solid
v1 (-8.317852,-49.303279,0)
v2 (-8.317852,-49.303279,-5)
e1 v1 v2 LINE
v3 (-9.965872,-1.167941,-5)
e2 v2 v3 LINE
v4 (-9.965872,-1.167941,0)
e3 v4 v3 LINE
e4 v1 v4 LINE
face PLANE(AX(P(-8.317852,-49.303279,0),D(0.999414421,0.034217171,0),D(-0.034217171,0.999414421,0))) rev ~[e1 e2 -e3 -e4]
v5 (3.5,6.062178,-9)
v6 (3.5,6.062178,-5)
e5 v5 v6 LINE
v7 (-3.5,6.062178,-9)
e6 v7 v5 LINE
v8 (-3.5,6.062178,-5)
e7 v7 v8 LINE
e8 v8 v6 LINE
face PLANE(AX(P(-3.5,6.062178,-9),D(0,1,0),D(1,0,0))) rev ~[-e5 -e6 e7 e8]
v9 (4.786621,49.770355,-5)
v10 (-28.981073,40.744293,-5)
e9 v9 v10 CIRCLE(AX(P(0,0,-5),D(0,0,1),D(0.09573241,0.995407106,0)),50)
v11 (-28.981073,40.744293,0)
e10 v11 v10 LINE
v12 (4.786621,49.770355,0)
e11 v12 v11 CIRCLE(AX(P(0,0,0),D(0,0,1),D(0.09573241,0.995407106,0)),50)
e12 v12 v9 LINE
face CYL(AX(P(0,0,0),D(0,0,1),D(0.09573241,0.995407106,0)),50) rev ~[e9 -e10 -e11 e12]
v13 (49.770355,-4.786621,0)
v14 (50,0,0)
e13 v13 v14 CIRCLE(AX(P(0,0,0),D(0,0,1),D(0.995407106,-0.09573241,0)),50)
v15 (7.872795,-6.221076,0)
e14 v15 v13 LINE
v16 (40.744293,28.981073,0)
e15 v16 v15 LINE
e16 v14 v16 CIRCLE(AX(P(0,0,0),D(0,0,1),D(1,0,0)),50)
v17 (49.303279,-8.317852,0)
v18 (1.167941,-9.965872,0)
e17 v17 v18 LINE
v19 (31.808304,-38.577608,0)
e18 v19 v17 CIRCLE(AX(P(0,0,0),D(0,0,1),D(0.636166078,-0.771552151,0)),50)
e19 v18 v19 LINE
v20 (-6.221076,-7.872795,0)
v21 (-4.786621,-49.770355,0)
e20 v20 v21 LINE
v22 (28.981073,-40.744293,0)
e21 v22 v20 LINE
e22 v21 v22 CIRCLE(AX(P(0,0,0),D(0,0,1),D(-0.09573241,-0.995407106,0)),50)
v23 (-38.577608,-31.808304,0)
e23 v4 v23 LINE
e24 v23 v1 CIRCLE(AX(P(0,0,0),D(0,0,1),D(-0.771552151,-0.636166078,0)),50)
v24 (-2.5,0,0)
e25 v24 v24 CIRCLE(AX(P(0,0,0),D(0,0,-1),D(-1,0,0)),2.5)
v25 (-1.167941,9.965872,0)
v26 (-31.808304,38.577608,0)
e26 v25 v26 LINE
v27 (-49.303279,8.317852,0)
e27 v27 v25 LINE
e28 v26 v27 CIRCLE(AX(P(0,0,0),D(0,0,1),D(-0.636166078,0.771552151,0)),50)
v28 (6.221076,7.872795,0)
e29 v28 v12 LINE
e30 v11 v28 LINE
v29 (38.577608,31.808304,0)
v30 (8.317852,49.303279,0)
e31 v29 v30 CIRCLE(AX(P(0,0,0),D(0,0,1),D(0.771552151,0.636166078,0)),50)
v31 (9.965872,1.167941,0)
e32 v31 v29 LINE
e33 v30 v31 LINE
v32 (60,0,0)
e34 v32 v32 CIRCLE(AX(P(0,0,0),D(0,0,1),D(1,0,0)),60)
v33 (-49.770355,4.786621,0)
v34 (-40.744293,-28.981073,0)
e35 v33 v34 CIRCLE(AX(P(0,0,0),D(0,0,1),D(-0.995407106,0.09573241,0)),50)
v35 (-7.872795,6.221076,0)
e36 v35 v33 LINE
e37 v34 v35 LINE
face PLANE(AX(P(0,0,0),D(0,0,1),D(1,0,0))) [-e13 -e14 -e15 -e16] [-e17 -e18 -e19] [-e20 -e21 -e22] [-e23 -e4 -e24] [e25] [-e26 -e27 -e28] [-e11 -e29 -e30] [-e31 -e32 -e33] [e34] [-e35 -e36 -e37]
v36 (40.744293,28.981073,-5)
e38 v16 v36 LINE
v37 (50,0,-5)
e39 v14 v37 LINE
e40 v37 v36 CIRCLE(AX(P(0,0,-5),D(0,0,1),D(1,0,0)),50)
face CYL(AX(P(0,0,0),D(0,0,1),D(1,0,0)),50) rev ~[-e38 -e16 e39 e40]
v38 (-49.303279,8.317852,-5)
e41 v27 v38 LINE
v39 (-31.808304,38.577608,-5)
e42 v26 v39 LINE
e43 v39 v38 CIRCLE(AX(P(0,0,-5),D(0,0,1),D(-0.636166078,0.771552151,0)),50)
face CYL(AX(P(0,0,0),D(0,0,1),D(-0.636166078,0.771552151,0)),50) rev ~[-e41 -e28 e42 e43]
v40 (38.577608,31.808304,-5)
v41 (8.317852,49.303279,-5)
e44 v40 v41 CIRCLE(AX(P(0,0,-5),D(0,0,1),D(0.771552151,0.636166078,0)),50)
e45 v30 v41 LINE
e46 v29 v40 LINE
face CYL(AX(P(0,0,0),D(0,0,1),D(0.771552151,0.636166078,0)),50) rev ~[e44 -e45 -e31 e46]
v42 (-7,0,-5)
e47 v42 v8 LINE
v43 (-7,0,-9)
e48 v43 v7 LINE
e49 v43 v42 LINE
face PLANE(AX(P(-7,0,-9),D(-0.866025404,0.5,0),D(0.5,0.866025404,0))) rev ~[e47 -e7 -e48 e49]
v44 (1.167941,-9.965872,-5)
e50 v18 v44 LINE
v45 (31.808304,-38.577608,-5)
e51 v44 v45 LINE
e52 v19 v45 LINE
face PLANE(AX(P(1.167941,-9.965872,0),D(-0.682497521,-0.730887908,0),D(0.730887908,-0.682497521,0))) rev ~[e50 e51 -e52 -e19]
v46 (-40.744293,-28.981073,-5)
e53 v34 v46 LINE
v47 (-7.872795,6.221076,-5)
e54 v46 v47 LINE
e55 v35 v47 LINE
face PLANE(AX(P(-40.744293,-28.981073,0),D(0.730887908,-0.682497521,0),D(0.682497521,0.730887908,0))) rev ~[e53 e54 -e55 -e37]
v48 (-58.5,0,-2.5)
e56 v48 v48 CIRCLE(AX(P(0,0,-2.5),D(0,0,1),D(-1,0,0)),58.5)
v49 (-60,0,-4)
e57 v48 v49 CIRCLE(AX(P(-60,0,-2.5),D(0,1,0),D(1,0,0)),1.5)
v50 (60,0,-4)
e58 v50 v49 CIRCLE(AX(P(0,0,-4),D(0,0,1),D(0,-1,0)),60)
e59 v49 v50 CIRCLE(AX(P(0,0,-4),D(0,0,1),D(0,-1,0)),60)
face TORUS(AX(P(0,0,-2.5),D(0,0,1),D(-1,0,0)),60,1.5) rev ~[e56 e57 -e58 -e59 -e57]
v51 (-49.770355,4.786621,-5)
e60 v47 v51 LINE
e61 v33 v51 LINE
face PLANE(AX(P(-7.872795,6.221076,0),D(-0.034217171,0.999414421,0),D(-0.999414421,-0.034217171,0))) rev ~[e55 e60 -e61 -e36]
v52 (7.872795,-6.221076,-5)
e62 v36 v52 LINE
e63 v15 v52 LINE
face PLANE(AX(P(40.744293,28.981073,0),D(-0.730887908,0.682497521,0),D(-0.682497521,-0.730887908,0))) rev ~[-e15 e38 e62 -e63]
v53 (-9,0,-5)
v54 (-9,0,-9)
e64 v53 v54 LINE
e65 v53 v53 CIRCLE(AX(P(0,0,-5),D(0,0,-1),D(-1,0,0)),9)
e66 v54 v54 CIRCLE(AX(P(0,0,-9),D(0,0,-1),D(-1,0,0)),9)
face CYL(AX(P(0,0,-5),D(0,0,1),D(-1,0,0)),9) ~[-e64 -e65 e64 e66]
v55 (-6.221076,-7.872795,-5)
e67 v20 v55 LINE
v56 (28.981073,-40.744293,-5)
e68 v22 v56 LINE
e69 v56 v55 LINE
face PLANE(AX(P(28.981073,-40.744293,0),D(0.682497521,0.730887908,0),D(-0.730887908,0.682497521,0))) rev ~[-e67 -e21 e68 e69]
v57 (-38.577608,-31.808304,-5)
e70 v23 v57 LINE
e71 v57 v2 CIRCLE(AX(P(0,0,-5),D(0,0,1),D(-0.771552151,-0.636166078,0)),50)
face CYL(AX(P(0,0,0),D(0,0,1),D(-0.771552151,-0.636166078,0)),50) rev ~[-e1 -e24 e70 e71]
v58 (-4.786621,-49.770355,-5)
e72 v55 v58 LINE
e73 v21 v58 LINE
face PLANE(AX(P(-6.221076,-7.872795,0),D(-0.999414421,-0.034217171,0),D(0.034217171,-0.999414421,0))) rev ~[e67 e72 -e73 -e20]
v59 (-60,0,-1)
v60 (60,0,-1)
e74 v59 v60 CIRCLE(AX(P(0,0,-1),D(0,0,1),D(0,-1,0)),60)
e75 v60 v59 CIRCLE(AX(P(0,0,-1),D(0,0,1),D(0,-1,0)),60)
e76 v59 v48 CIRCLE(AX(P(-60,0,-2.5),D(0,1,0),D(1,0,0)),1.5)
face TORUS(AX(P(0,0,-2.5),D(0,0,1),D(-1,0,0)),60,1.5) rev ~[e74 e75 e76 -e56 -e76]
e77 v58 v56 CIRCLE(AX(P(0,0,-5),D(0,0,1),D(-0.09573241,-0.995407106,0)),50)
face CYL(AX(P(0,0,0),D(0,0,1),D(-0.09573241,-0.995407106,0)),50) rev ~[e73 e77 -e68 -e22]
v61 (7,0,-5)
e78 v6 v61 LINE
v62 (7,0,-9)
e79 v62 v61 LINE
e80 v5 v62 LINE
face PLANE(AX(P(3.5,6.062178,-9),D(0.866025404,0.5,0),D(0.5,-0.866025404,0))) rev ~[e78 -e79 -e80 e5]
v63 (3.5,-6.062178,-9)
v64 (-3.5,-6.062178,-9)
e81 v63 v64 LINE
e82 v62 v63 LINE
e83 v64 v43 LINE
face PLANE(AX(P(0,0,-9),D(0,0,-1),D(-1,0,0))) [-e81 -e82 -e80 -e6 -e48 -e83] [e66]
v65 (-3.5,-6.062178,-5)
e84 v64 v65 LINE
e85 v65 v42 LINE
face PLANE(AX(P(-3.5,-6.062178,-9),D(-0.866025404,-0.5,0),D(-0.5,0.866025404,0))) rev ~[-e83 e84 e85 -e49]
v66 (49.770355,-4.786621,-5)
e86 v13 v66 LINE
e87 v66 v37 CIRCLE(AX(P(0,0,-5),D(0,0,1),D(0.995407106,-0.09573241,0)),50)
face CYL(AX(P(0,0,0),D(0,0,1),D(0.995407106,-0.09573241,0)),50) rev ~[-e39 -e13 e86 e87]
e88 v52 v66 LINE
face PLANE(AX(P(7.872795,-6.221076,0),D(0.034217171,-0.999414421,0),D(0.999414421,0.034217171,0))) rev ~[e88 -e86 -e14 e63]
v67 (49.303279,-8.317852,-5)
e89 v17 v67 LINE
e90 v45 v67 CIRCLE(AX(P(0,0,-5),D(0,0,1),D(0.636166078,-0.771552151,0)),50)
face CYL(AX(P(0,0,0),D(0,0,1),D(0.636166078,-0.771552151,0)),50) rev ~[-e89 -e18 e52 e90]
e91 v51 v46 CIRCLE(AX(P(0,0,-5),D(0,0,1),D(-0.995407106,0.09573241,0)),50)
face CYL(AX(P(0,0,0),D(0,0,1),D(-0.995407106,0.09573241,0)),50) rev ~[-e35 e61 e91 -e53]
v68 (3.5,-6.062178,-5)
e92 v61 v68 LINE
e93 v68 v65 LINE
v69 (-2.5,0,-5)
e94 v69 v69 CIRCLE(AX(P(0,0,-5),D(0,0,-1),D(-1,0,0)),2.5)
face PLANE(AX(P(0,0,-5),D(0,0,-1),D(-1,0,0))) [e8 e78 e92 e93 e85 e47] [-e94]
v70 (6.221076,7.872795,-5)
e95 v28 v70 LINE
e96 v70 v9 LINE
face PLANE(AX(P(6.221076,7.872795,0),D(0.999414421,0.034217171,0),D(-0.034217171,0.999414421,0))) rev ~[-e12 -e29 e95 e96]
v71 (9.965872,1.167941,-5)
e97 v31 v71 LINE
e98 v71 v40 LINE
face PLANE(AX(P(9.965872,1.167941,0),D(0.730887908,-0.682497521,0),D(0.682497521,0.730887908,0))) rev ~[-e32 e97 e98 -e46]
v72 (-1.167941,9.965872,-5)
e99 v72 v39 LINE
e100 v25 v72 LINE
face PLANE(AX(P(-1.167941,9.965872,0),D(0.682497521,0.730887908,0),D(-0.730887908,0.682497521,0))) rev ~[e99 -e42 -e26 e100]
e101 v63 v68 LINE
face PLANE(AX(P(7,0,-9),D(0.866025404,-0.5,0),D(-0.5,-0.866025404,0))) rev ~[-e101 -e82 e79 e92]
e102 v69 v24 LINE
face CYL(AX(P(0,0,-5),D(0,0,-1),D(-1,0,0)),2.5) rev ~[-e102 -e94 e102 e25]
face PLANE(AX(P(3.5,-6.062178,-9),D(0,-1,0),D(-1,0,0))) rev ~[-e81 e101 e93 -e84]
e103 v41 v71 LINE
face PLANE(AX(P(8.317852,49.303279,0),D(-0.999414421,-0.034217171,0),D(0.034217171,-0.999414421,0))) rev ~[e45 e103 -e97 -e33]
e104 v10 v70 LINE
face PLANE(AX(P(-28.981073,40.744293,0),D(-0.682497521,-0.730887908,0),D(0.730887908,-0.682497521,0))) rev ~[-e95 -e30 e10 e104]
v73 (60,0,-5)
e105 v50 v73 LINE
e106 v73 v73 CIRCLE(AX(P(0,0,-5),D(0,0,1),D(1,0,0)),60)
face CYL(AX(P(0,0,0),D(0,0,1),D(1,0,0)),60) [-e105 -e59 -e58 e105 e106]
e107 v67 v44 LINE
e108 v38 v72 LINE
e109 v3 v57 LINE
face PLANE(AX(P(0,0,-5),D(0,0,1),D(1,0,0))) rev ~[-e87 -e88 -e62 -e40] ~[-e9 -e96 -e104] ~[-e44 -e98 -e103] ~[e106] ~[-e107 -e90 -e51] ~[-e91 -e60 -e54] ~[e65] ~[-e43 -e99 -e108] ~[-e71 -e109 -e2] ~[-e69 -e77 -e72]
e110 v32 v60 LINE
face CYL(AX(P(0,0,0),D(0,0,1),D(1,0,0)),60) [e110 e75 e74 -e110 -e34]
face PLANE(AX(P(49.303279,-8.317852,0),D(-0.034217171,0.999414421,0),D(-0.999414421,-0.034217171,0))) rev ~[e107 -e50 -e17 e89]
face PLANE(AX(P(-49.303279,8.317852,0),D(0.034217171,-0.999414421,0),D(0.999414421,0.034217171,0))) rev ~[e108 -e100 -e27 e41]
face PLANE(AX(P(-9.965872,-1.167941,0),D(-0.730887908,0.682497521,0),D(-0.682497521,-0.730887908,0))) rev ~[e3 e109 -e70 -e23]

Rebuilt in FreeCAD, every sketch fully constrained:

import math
import FreeCAD as App
import Part
import Sketcher
Q = App.Units.Quantity

doc = App.newDocument("Part")
body = doc.addObject("PartDesign::Body", "Body")

sketch1 = body.newObject("Sketcher::SketchObject", "Sketch")
sketch1.AttachmentSupport = (doc.getObject("XY_Plane"), [""])
sketch1.MapMode = "FlatFace"
sketch1.addGeometry(Part.Circle(App.Vector(0, 0, 0), App.Vector(0, 0, 1), 60), False)
sketch1.addConstraint(Sketcher.Constraint("Coincident", 0, 3, -1, 1))
sketch1.addConstraint(Sketcher.Constraint("Diameter", 0, 120.0))
pad1 = body.newObject("PartDesign::Pad", "Pad")
pad1.Profile = sketch1
pad1.Length = 5
pad1.Reversed = True

sketch2 = body.newObject("Sketcher::SketchObject", "Sketch001")
sketch2.AttachmentSupport = (doc.getObject("XY_Plane"), [""])
sketch2.MapMode = "FlatFace"
sketch2.addGeometry(Part.ArcOfCircle(Part.Circle(App.Vector(0, 0, 0), App.Vector(0, 0, 1), 50), math.radians(-95), math.radians(-55)), False)
sketch2.addGeometry(Part.LineSegment(App.Vector(29, -40.7, 0), App.Vector(-6.2, -7.9, 0)), False)
sketch2.addGeometry(Part.LineSegment(App.Vector(-6.2, -7.9, 0), App.Vector(-4.8, -49.8, 0)), False)
sketch2.addGeometry(Part.LineSegment(App.Vector(49.3, -8.3, 0), App.Vector(1.2, -10, 0)), False)
sketch2.addGeometry(Part.LineSegment(App.Vector(1.2, -10, 0), App.Vector(31.8, -38.6, 0)), False)
sketch2.addGeometry(Part.ArcOfCircle(Part.Circle(App.Vector(0, 0, 0), App.Vector(0, 0, 1), 50), math.radians(-50), math.radians(-10)), False)
sketch2.addGeometry(Part.LineSegment(App.Vector(40.7, 29, 0), App.Vector(7.9, -6.2, 0)), False)
sketch2.addGeometry(Part.LineSegment(App.Vector(7.9, -6.2, 0), App.Vector(49.8, -4.8, 0)), False)
sketch2.addGeometry(Part.ArcOfCircle(Part.Circle(App.Vector(0, 0, 0), App.Vector(0, 0, 1), 50), math.radians(-5.49), math.radians(0)), False)
sketch2.addGeometry(Part.ArcOfCircle(Part.Circle(App.Vector(0, 0, 0), App.Vector(0, 0, 1), 50), math.radians(0), math.radians(35)), False)
sketch2.addGeometry(Part.LineSegment(App.Vector(10, 1.2, 0), App.Vector(38.6, 31.8, 0)), False)
sketch2.addGeometry(Part.ArcOfCircle(Part.Circle(App.Vector(0, 0, 0), App.Vector(0, 0, 1), 50), math.radians(40), math.radians(80)), False)
sketch2.addGeometry(Part.LineSegment(App.Vector(8.3, 49.3, 0), App.Vector(10, 1.2, 0)), False)
sketch2.addGeometry(Part.LineSegment(App.Vector(6.2, 7.9, 0), App.Vector(4.8, 49.8, 0)), False)
sketch2.addGeometry(Part.ArcOfCircle(Part.Circle(App.Vector(0, 0, 0), App.Vector(0, 0, 1), 50), math.radians(85), math.radians(125)), False)
sketch2.addGeometry(Part.LineSegment(App.Vector(-29, 40.7, 0), App.Vector(6.2, 7.9, 0)), False)
sketch2.addGeometry(Part.LineSegment(App.Vector(-1.2, 10, 0), App.Vector(-31.8, 38.6, 0)), False)
sketch2.addGeometry(Part.ArcOfCircle(Part.Circle(App.Vector(0, 0, 0), App.Vector(0, 0, 1), 50), math.radians(130), math.radians(170)), False)
sketch2.addGeometry(Part.LineSegment(App.Vector(-49.3, 8.3, 0), App.Vector(-1.2, 10, 0)), False)
sketch2.addGeometry(Part.ArcOfCircle(Part.Circle(App.Vector(0, 0, 0), App.Vector(0, 0, 1), 50), math.radians(175), math.radians(215)), False)
sketch2.addGeometry(Part.LineSegment(App.Vector(-40.7, -29, 0), App.Vector(-7.9, 6.2, 0)), False)
sketch2.addGeometry(Part.LineSegment(App.Vector(-7.9, 6.2, 0), App.Vector(-49.8, 4.8, 0)), False)
sketch2.addGeometry(Part.ArcOfCircle(Part.Circle(App.Vector(0, 0, 0), App.Vector(0, 0, 1), 50), math.radians(-140), math.radians(-100)), False)
sketch2.addGeometry(Part.LineSegment(App.Vector(-8.3, -49.3, 0), App.Vector(-10, -1.2, 0)), False)
sketch2.addGeometry(Part.LineSegment(App.Vector(-10, -1.2, 0), App.Vector(-38.6, -31.8, 0)), False)
sketch2.addConstraint(Sketcher.Constraint("Coincident", 0, 2, 1, 1))
sketch2.addConstraint(Sketcher.Constraint("Coincident", 1, 2, 2, 1))
sketch2.addConstraint(Sketcher.Constraint("Coincident", 2, 2, 0, 1))
sketch2.addConstraint(Sketcher.Constraint("Coincident", 3, 2, 4, 1))
sketch2.addConstraint(Sketcher.Constraint("Coincident", 4, 2, 5, 1))
sketch2.addConstraint(Sketcher.Constraint("Coincident", 5, 2, 3, 1))
sketch2.addConstraint(Sketcher.Constraint("Coincident", 6, 2, 7, 1))
sketch2.addConstraint(Sketcher.Constraint("Coincident", 7, 2, 8, 1))
sketch2.addConstraint(Sketcher.Constraint("Tangent", 8, 2, 9, 1))
sketch2.addConstraint(Sketcher.Constraint("Coincident", 9, 2, 6, 1))
sketch2.addConstraint(Sketcher.Constraint("Coincident", 10, 2, 11, 1))
sketch2.addConstraint(Sketcher.Constraint("Coincident", 11, 2, 12, 1))
sketch2.addConstraint(Sketcher.Constraint("Coincident", 12, 2, 10, 1))
sketch2.addConstraint(Sketcher.Constraint("Coincident", 13, 2, 14, 1))
sketch2.addConstraint(Sketcher.Constraint("Coincident", 14, 2, 15, 1))
sketch2.addConstraint(Sketcher.Constraint("Coincident", 15, 2, 13, 1))
sketch2.addConstraint(Sketcher.Constraint("Coincident", 16, 2, 17, 1))
sketch2.addConstraint(Sketcher.Constraint("Coincident", 17, 2, 18, 1))
sketch2.addConstraint(Sketcher.Constraint("Coincident", 18, 2, 16, 1))
sketch2.addConstraint(Sketcher.Constraint("Coincident", 19, 2, 20, 1))
sketch2.addConstraint(Sketcher.Constraint("Coincident", 20, 2, 21, 1))
sketch2.addConstraint(Sketcher.Constraint("Coincident", 21, 2, 19, 1))
sketch2.addConstraint(Sketcher.Constraint("Coincident", 22, 2, 23, 1))
sketch2.addConstraint(Sketcher.Constraint("Coincident", 23, 2, 24, 1))
sketch2.addConstraint(Sketcher.Constraint("Coincident", 24, 2, 22, 1))
sketch2.addConstraint(Sketcher.Constraint("Coincident", 0, 3, -1, 1))
sketch2.addConstraint(Sketcher.Constraint("Coincident", 5, 3, -1, 1))
sketch2.addConstraint(Sketcher.Constraint("Coincident", 8, 3, -1, 1))
sketch2.addConstraint(Sketcher.Constraint("Coincident", 11, 3, -1, 1))
sketch2.addConstraint(Sketcher.Constraint("Coincident", 14, 3, -1, 1))
sketch2.addConstraint(Sketcher.Constraint("Coincident", 17, 3, -1, 1))
sketch2.addConstraint(Sketcher.Constraint("Coincident", 19, 3, -1, 1))
sketch2.addConstraint(Sketcher.Constraint("Coincident", 22, 3, -1, 1))
sketch2.addConstraint(Sketcher.Constraint("Equal", 0, 5))
sketch2.addConstraint(Sketcher.Constraint("Equal", 5, 8))
sketch2.addConstraint(Sketcher.Constraint("Equal", 8, 9))
sketch2.addConstraint(Sketcher.Constraint("Equal", 9, 11))
sketch2.addConstraint(Sketcher.Constraint("Equal", 11, 14))
sketch2.addConstraint(Sketcher.Constraint("Equal", 14, 17))
sketch2.addConstraint(Sketcher.Constraint("Equal", 17, 19))
sketch2.addConstraint(Sketcher.Constraint("Equal", 19, 22))
sketch2.addConstraint(Sketcher.Constraint("Symmetric", 1, 2, 15, 2, -1, 1))
sketch2.addConstraint(Sketcher.Constraint("Symmetric", 3, 2, 18, 2, -1, 1))
sketch2.addConstraint(Sketcher.Constraint("Symmetric", 6, 2, 20, 2, -1, 1))
sketch2.addConstraint(Sketcher.Constraint("Symmetric", 12, 2, 23, 2, -1, 1))
sketch2.addConstraint(Sketcher.Constraint("PointOnObject", 8, 2, -1))
sketch2.addConstraint(Sketcher.Constraint("Perpendicular", 2, 3))
sketch2.addConstraint(Sketcher.Constraint("Parallel", 1, 4))
sketch2.addConstraint(Sketcher.Constraint("Perpendicular", 4, 6))
sketch2.addConstraint(Sketcher.Constraint("Parallel", 3, 7))
sketch2.addConstraint(Sketcher.Constraint("Parallel", 6, 10))
sketch2.addConstraint(Sketcher.Constraint("Perpendicular", 7, 12))
sketch2.addConstraint(Sketcher.Constraint("Parallel", 12, 13))
sketch2.addConstraint(Sketcher.Constraint("Perpendicular", 10, 15))
sketch2.addConstraint(Sketcher.Constraint("Parallel", 15, 16))
sketch2.addConstraint(Sketcher.Constraint("Perpendicular", 13, 18))
sketch2.addConstraint(Sketcher.Constraint("Perpendicular", 16, 20))
sketch2.addConstraint(Sketcher.Constraint("Parallel", 18, 21))
sketch2.addConstraint(Sketcher.Constraint("Perpendicular", 21, 23))
sketch2.addConstraint(Sketcher.Constraint("Parallel", 20, 24))
sketch2.addConstraint(Sketcher.Constraint("Equal", 1, 3))
sketch2.addConstraint(Sketcher.Constraint("Equal", 2, 4))
sketch2.addConstraint(Sketcher.Constraint("Equal", 3, 6))
sketch2.addConstraint(Sketcher.Constraint("Equal", 4, 7))
sketch2.addConstraint(Sketcher.Constraint("Equal", 7, 10))
sketch2.addConstraint(Sketcher.Constraint("Equal", 6, 12))
sketch2.addConstraint(Sketcher.Constraint("Radius", 0, 50.0))
sketch2.addConstraint(Sketcher.Constraint("DistanceY", 19, 2, 3, 2, 19.015201))
sketch2.addConstraint(Sketcher.Constraint("Distance", 1, 48.163541))
sketch2.addConstraint(Sketcher.Constraint("Distance", 2, 41.922109))
sketch2.addConstraint(Sketcher.Constraint("DistanceX", 2, 2, -1, 1, 4.786621))
pocket1 = body.newObject("PartDesign::Pocket", "Pocket")
pocket1.Profile = sketch2
pocket1.Length = 5

sketch3 = body.newObject("Sketcher::SketchObject", "Sketch002")
sketch3.AttachmentSupport = (doc.getObject("XZ_Plane"), [""])
sketch3.MapMode = "FlatFace"
sketch3.addGeometry(Part.Circle(App.Vector(-60, -2.5, 0), App.Vector(0, 0, 1), 1.5), False)
sketch3.addConstraint(Sketcher.Constraint("Diameter", 0, 3.0))
sketch3.addConstraint(Sketcher.Constraint("DistanceX", 0, 3, -1, 1, 60.0))
sketch3.addConstraint(Sketcher.Constraint("DistanceY", 0, 3, -1, 1, 2.5))
groove = body.newObject("PartDesign::Groove", "Groove")
groove.Profile = sketch3
groove.ReferenceAxis = (sketch3, ["V_Axis"])
groove.Angle = 360

sketch4 = body.newObject("Sketcher::SketchObject", "Sketch003")
sketch4.AttachmentSupport = (doc.getObject("XY_Plane"), [""])
sketch4.MapMode = "FlatFace"
sketch4.AttachmentOffset = App.Placement(App.Vector(0, 0, -5), App.Rotation())
sketch4.addGeometry(Part.Circle(App.Vector(0, 0, 0), App.Vector(0, 0, 1), 9), False)
sketch4.addConstraint(Sketcher.Constraint("Coincident", 0, 3, -1, 1))
sketch4.addConstraint(Sketcher.Constraint("Diameter", 0, 18.0))
pad2 = body.newObject("PartDesign::Pad", "Pad001")
pad2.Profile = sketch4
pad2.Length = 4
pad2.Reversed = True

sketch5 = body.newObject("Sketcher::SketchObject", "Sketch004")
sketch5.AttachmentSupport = (doc.getObject("XY_Plane"), [""])
sketch5.MapMode = "FlatFace"
sketch5.AttachmentOffset = App.Placement(App.Vector(0, 0, -9), App.Rotation())
sketch5.addGeometry(Part.LineSegment(App.Vector(-7, 0, 0), App.Vector(-4, 6, 0)), False)
sketch5.addGeometry(Part.LineSegment(App.Vector(-4, 6, 0), App.Vector(4, 6, 0)), False)
sketch5.addGeometry(Part.LineSegment(App.Vector(4, 6, 0), App.Vector(7, 0, 0)), False)
sketch5.addGeometry(Part.LineSegment(App.Vector(7, 0, 0), App.Vector(4, -6, 0)), False)
sketch5.addGeometry(Part.LineSegment(App.Vector(4, -6, 0), App.Vector(-4, -6, 0)), False)
sketch5.addGeometry(Part.LineSegment(App.Vector(-4, -6, 0), App.Vector(-7, 0, 0)), False)
sketch5.addConstraint(Sketcher.Constraint("Coincident", 0, 2, 1, 1))
sketch5.addConstraint(Sketcher.Constraint("Coincident", 1, 2, 2, 1))
sketch5.addConstraint(Sketcher.Constraint("Coincident", 2, 2, 3, 1))
sketch5.addConstraint(Sketcher.Constraint("Coincident", 3, 2, 4, 1))
sketch5.addConstraint(Sketcher.Constraint("Coincident", 4, 2, 5, 1))
sketch5.addConstraint(Sketcher.Constraint("Coincident", 5, 2, 0, 1))
sketch5.addConstraint(Sketcher.Constraint("Horizontal", 1))
sketch5.addConstraint(Sketcher.Constraint("Horizontal", 4))
sketch5.addConstraint(Sketcher.Constraint("Symmetric", 0, 2, 3, 2, -1, 1))
sketch5.addConstraint(Sketcher.Constraint("Symmetric", 2, 2, 5, 2, -1, 1))
sketch5.addConstraint(Sketcher.Constraint("PointOnObject", 2, 2, -1))
sketch5.addConstraint(Sketcher.Constraint("Parallel", 2, 5))
sketch5.addConstraint(Sketcher.Constraint("Vertical", 1, 2, 3, 2))
sketch5.addConstraint(Sketcher.Constraint("DistanceX", 1, 1, 1, 2, 7.0))
sketch5.addConstraint(Sketcher.Constraint("Angle", 0, Q("60 deg")))
sketch5.addConstraint(Sketcher.Constraint("Distance", 0, 7.0))
pocket2 = body.newObject("PartDesign::Pocket", "Pocket001")
pocket2.Profile = sketch5
pocket2.Length = 4
pocket2.Reversed = True

sketch6 = body.newObject("Sketcher::SketchObject", "Sketch005")
sketch6.AttachmentSupport = (doc.getObject("XY_Plane"), [""])
sketch6.MapMode = "FlatFace"
sketch6.AttachmentOffset = App.Placement(App.Vector(0, 0, -5), App.Rotation())
sketch6.addGeometry(Part.Circle(App.Vector(0, 0, 0), App.Vector(0, 0, 1), 2.5), False)
sketch6.addConstraint(Sketcher.Constraint("Coincident", 0, 3, -1, 1))
sketch6.addConstraint(Sketcher.Constraint("Diameter", 0, 5.0))
pocket3 = body.newObject("PartDesign::Pocket", "Pocket002")
pocket3.Profile = sketch6
pocket3.Type = "ThroughAll"
pocket3.Reversed = True

doc.recompute()
